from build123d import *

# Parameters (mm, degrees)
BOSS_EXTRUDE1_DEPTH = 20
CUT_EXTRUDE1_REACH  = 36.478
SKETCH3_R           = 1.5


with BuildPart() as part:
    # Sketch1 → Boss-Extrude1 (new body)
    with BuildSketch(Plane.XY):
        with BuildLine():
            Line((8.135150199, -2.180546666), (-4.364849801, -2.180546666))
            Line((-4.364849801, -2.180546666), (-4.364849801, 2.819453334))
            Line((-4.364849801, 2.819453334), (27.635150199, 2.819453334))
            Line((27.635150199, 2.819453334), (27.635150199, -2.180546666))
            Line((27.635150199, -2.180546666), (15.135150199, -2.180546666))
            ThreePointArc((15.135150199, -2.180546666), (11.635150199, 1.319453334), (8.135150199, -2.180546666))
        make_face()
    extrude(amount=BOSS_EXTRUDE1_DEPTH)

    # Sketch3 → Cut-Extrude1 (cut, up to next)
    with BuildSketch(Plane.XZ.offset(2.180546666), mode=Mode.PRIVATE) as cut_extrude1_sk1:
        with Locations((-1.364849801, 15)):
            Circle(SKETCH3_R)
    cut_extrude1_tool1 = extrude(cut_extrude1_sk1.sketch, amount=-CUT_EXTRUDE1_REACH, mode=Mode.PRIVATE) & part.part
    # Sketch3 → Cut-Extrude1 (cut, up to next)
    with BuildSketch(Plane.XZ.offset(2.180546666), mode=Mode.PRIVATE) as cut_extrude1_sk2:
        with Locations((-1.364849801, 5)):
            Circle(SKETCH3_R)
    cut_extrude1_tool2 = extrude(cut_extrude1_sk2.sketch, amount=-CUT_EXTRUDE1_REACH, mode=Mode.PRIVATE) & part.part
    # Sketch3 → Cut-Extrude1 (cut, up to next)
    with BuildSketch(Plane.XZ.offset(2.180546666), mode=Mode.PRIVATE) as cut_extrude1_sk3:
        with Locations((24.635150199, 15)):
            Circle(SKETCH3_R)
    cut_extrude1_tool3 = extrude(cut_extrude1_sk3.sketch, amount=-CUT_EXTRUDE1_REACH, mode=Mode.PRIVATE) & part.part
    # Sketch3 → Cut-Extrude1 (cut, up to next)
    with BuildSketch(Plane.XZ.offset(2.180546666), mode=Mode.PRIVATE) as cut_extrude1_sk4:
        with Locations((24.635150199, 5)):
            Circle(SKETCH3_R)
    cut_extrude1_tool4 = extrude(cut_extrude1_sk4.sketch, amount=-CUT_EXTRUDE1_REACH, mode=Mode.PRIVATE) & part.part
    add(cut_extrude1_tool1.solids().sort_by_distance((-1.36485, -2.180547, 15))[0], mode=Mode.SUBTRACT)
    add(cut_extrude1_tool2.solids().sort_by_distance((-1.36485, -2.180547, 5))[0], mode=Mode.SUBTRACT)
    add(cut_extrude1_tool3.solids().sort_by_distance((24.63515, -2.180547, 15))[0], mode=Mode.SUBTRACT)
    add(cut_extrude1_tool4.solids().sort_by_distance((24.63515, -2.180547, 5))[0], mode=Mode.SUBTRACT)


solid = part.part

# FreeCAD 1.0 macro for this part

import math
import FreeCAD as App
import Part
import Sketcher

doc = App.newDocument("Part")
body = doc.addObject("PartDesign::Body", "Body")

sketch1 = body.newObject("Sketcher::SketchObject", "Sketch")
sketch1.AttachmentSupport = (doc.getObject("XY_Plane"), [""])
sketch1.MapMode = "FlatFace"
sketch1.addGeometry([
    Part.LineSegment(App.Vector(-4.4, -2.2, 0), App.Vector(8.1, -2.2, 0)),
    Part.ArcOfCircle(Part.Circle(App.Vector(11.6, -2.2, 0), App.Vector(0, 0, 1), 3.5), math.radians(0), math.radians(180)),
    Part.LineSegment(App.Vector(15.1, -2.2, 0), App.Vector(27.6, -2.2, 0)),
    Part.LineSegment(App.Vector(27.6, -2.2, 0), App.Vector(27.6, 2.8, 0)),
    Part.LineSegment(App.Vector(27.6, 2.8, 0), App.Vector(-4.4, 2.8, 0)),
    Part.LineSegment(App.Vector(-4.4, 2.8, 0), App.Vector(-4.4, -2.2, 0)),
], False)
sketch1.addConstraint([
    Sketcher.Constraint("Coincident", 0, 2, 1, 2),
    Sketcher.Constraint("Coincident", 1, 1, 2, 1),
    Sketcher.Constraint("Coincident", 2, 2, 3, 1),
    Sketcher.Constraint("Coincident", 3, 2, 4, 1),
    Sketcher.Constraint("Coincident", 4, 2, 5, 1),
    Sketcher.Constraint("Coincident", 5, 2, 0, 1),
    Sketcher.Constraint("Horizontal", 0),
    Sketcher.Constraint("Horizontal", 2),
    Sketcher.Constraint("Vertical", 3),
    Sketcher.Constraint("Horizontal", 4),
    Sketcher.Constraint("Vertical", 5),
    Sketcher.Constraint("Horizontal", 1, 3, 0, 2),
    Sketcher.Constraint("Horizontal", 0, 2, 1, 1),
    Sketcher.Constraint("Equal", 0, 2),
    Sketcher.Constraint("Radius", 1, 3.5),
    Sketcher.Constraint("DistanceX", 4, 2, 4, 1, 32.0),
    Sketcher.Constraint("DistanceY", 3, 1, 3, 2, 5.0),
    Sketcher.Constraint("DistanceX", -1, 1, 1, 3, 11.63515),
    Sketcher.Constraint("DistanceY", 1, 3, -1, 1, 2.180547),
])
pad1 = body.newObject("PartDesign::Pad", "Pad")
pad1.Profile = sketch1
pad1.Length = 20

sketch2 = body.newObject("Sketcher::SketchObject", "Sketch001")
sketch2.AttachmentSupport = (doc.getObject("XZ_Plane"), [""])
sketch2.MapMode = "FlatFace"
sketch2.AttachmentOffset = App.Placement(App.Vector(0, 0, 2.180547), App.Rotation())
sketch2.addGeometry(Part.Circle(App.Vector(-1.4, 15, 0), App.Vector(0, 0, 1), 1.5), False)
sketch2.addConstraint([
    Sketcher.Constraint("Diameter", 0, 3.0),
    Sketcher.Constraint("DistanceY", -1, 1, 0, 3, 15.0),
    Sketcher.Constraint("DistanceX", 0, 3, -1, 1, 1.36485),
])
pocket1 = body.newObject("PartDesign::Pocket", "Pocket")
pocket1.Profile = sketch2
pocket1.Type = "UpToFirst"

sketch3 = body.newObject("Sketcher::SketchObject", "Sketch002")
sketch3.AttachmentSupport = (doc.getObject("XZ_Plane"), [""])
sketch3.MapMode = "FlatFace"
sketch3.AttachmentOffset = App.Placement(App.Vector(0, 0, 2.180547), App.Rotation())
sketch3.addGeometry(Part.Circle(App.Vector(-1.4, 5, 0), App.Vector(0, 0, 1), 1.5), False)
sketch3.addConstraint([
    Sketcher.Constraint("Diameter", 0, 3.0),
    Sketcher.Constraint("DistanceY", -1, 1, 0, 3, 5.0),
    Sketcher.Constraint("DistanceX", 0, 3, -1, 1, 1.36485),
])
pocket2 = body.newObject("PartDesign::Pocket", "Pocket001")
pocket2.Profile = sketch3
pocket2.Type = "UpToFirst"

sketch4 = body.newObject("Sketcher::SketchObject", "Sketch003")
sketch4.AttachmentSupport = (doc.getObject("XZ_Plane"), [""])
sketch4.MapMode = "FlatFace"
sketch4.AttachmentOffset = App.Placement(App.Vector(0, 0, 2.180547), App.Rotation())
sketch4.addGeometry(Part.Circle(App.Vector(24.6, 15, 0), App.Vector(0, 0, 1), 1.5), False)
sketch4.addConstraint([
    Sketcher.Constraint("Diameter", 0, 3.0),
    Sketcher.Constraint("DistanceY", -1, 1, 0, 3, 15.0),
    Sketcher.Constraint("DistanceX", -1, 1, 0, 3, 24.63515),
])
pocket3 = body.newObject("PartDesign::Pocket", "Pocket002")
pocket3.Profile = sketch4
pocket3.Type = "UpToFirst"

sketch5 = body.newObject("Sketcher::SketchObject", "Sketch004")
sketch5.AttachmentSupport = (doc.getObject("XZ_Plane"), [""])
sketch5.MapMode = "FlatFace"
sketch5.AttachmentOffset = App.Placement(App.Vector(0, 0, 2.180547), App.Rotation())
sketch5.addGeometry(Part.Circle(App.Vector(24.6, 5, 0), App.Vector(0, 0, 1), 1.5), False)
sketch5.addConstraint([
    Sketcher.Constraint("Diameter", 0, 3.0),
    Sketcher.Constraint("DistanceY", -1, 1, 0, 3, 5.0),
    Sketcher.Constraint("DistanceX", -1, 1, 0, 3, 24.63515),
])
pocket4 = body.newObject("PartDesign::Pocket", "Pocket003")
pocket4.Profile = sketch5
pocket4.Type = "UpToFirst"

doc.recompute()
